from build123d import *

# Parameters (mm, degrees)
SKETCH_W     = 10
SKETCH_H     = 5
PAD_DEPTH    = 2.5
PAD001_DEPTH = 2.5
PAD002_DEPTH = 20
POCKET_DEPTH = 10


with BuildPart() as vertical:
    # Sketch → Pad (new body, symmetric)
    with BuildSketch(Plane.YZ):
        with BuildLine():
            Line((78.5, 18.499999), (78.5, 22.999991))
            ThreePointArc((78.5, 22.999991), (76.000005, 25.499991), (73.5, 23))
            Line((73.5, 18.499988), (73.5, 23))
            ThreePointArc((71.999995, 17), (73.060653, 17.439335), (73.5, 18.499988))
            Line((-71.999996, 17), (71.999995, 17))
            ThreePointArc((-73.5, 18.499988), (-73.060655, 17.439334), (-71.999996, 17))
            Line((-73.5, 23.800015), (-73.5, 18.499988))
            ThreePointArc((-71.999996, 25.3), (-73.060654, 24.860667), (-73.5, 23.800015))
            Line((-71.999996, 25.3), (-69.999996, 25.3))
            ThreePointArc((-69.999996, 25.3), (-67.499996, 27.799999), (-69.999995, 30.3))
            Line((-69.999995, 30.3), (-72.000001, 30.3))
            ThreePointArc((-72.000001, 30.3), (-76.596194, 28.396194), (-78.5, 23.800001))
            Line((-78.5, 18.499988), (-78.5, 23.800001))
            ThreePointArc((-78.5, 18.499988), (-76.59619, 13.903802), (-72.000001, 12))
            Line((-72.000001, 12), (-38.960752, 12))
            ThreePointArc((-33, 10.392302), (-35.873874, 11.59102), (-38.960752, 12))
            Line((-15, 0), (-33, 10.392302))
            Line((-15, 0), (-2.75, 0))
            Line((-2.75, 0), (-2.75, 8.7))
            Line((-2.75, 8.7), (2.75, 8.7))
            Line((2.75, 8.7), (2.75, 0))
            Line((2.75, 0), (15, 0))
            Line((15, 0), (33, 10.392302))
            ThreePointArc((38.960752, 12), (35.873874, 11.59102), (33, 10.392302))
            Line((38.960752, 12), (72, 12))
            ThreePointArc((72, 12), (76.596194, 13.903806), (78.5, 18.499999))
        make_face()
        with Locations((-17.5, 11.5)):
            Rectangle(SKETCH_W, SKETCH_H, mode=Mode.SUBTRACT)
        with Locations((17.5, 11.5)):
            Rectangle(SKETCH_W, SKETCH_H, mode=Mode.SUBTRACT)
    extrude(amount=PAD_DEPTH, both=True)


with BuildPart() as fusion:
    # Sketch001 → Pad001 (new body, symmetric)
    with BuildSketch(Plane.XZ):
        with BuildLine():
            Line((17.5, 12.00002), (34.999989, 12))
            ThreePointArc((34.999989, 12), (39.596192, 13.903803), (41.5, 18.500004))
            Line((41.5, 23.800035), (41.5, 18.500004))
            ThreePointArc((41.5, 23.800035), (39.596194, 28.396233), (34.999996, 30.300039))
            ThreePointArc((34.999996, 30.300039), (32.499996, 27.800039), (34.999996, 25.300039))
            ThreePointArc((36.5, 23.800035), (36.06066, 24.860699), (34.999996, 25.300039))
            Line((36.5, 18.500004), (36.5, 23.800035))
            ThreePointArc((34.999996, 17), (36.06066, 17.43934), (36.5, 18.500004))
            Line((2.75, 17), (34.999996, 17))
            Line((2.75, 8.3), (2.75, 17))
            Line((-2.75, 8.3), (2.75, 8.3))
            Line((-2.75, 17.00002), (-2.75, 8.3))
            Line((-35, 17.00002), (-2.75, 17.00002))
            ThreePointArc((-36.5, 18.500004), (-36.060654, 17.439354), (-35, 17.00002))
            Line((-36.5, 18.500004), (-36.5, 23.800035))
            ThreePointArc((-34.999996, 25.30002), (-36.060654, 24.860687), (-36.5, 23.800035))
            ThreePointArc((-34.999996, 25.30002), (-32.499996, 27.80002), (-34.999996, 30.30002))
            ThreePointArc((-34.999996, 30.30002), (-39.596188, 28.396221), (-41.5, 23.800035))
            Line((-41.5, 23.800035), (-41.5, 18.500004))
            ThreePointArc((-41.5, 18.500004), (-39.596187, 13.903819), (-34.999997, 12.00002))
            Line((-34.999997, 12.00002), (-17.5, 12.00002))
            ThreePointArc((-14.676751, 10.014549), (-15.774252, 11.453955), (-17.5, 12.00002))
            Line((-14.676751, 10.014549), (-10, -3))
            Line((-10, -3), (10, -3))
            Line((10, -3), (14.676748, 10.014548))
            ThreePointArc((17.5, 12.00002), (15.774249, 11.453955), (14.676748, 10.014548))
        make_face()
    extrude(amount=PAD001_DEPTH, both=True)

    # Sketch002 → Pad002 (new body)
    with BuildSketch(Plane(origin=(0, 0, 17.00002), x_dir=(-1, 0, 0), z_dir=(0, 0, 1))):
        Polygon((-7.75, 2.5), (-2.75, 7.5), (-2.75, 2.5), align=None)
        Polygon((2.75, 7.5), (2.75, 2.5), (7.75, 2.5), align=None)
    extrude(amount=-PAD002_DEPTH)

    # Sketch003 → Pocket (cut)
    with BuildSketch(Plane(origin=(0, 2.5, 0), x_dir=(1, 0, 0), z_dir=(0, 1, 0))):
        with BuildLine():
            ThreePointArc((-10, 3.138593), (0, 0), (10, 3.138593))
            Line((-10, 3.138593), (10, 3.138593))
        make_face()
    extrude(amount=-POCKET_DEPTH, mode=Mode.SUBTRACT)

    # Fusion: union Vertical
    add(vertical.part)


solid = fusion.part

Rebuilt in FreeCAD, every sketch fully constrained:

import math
import FreeCAD as App
import Part
import Sketcher
from FreeCAD import Vector
Q = App.Units.Quantity

doc = App.newDocument("Part")
body = doc.addObject("PartDesign::Body", "Body")

# Sketch on YZ plane
sketch1 = body.newObject("Sketcher::SketchObject", "Sketch")
sketch1.AttachmentSupport = (doc.getObject("YZ_Plane"), [""])
sketch1.MapMode = "FlatFace"
sketch1.addGeometry(Part.LineSegment(Vector(78.5, 18.499999, 0), Vector(78.5, 22.999991, 0)), False)
sketch1.addGeometry(Part.ArcOfCircle(Part.Circle(Vector(76, 22.999991, 0), Vector(0, 0, 1), 2.5), math.radians(0), math.radians(179.999794)), False)
sketch1.addGeometry(Part.LineSegment(Vector(73.5, 23, 0), Vector(73.5, 18.499988, 0)), False)
sketch1.addGeometry(Part.ArcOfCircle(Part.Circle(Vector(71.999996, 18.500004, 0), Vector(0, 0, 1), 1.500004), math.radians(-90.000038), math.radians(-0.000611)), False)
sketch1.addGeometry(Part.LineSegment(Vector(71.999995, 17, 0), Vector(-71.999996, 17, 0)), False)
sketch1.addGeometry(Part.ArcOfCircle(Part.Circle(Vector(-72.000001, 18.499999, 0), Vector(0, 0, 1), 1.499999), math.radians(-179.999584), math.radians(-89.999804)), False)
sketch1.addGeometry(Part.LineSegment(Vector(-73.5, 18.499988, 0), Vector(-73.5, 23.800015, 0)), False)
sketch1.addGeometry(Part.ArcOfCircle(Part.Circle(Vector(-72.000001, 23.800001, 0), Vector(0, 0, 1), 1.499999), math.radians(89.999804), math.radians(179.99947)), False)
sketch1.addGeometry(Part.LineSegment(Vector(-71.999996, 25.3, 0), Vector(-69.999996, 25.3, 0)), False)
sketch1.addGeometry(Part.ArcOfCircle(Part.Circle(Vector(-69.999996, 27.8, 0), Vector(0, 0, 1), 2.5), math.radians(-90), math.radians(89.999977)), False)
sketch1.addGeometry(Part.LineSegment(Vector(-69.999995, 30.3, 0), Vector(-72.000001, 30.3, 0)), False)
sketch1.addGeometry(Part.ArcOfCircle(Part.Circle(Vector(-72, 23.8, 0), Vector(0, 0, 1), 6.5), math.radians(90.000011), math.radians(179.999989)), False)
sketch1.addGeometry(Part.LineSegment(Vector(-78.5, 23.800001, 0), Vector(-78.5, 18.499988, 0)), False)
sketch1.addGeometry(Part.ArcOfCircle(Part.Circle(Vector(-72, 18.5, 0), Vector(0, 0, 1), 6.5), math.radians(-179.999892), math.radians(-90.000011)), False)
sketch1.addGeometry(Part.LineSegment(Vector(-72.000001, 12, 0), Vector(-38.960752, 12, 0)), False)
sketch1.addGeometry(Part.ArcOfCircle(Part.Circle(Vector(-38.960754, 0.146008, 0), Vector(0, 0, 1), 11.853992), math.radians(59.811411), math.radians(89.999992)), False)
sketch1.addGeometry(Part.LineSegment(Vector(-33, 10.392302, 0), Vector(-15, 0, 0)), False)
sketch1.addGeometry(Part.LineSegment(Vector(-15, 0, 0), Vector(-2.75, 0, 0)), False)
sketch1.addGeometry(Part.LineSegment(Vector(-2.75, 0, 0), Vector(-2.75, 8.7, 0)), False)
sketch1.addGeometry(Part.LineSegment(Vector(-2.75, 8.7, 0), Vector(2.75, 8.7, 0)), False)
sketch1.addGeometry(Part.LineSegment(Vector(2.75, 8.7, 0), Vector(2.75, 0, 0)), False)
sketch1.addGeometry(Part.LineSegment(Vector(2.75, 0, 0), Vector(15, 0, 0)), False)
sketch1.addGeometry(Part.LineSegment(Vector(15, 0, 0), Vector(33, 10.392302, 0)), False)
sketch1.addGeometry(Part.ArcOfCircle(Part.Circle(Vector(38.960754, 0.146008, 0), Vector(0, 0, 1), 11.853992), math.radians(90.000008), math.radians(120.188589)), False)
sketch1.addGeometry(Part.LineSegment(Vector(38.960752, 12, 0), Vector(72, 12, 0)), False)
sketch1.addGeometry(Part.ArcOfCircle(Part.Circle(Vector(72, 18.5, 0), Vector(0, 0, 1), 6.5), math.radians(-89.999998), math.radians(-0.000011)), False)
sketch1.addGeometry(Part.LineSegment(Vector(-12.5, 9, 0), Vector(-22.5, 9, 0)), False)
sketch1.addGeometry(Part.LineSegment(Vector(-22.5, 9, 0), Vector(-22.5, 14, 0)), False)
sketch1.addGeometry(Part.LineSegment(Vector(-22.5, 14, 0), Vector(-12.5, 14, 0)), False)
sketch1.addGeometry(Part.LineSegment(Vector(-12.5, 14, 0), Vector(-12.5, 9, 0)), False)
sketch1.addGeometry(Part.LineSegment(Vector(22.5, 9, 0), Vector(12.5, 9, 0)), False)
sketch1.addGeometry(Part.LineSegment(Vector(12.5, 9, 0), Vector(12.5, 14, 0)), False)
sketch1.addGeometry(Part.LineSegment(Vector(12.5, 14, 0), Vector(22.5, 14, 0)), False)
sketch1.addGeometry(Part.LineSegment(Vector(22.5, 14, 0), Vector(22.5, 9, 0)), False)
sketch1.addConstraint(Sketcher.Constraint("Tangent", 0, 2, 1, 1))
sketch1.addConstraint(Sketcher.Constraint("Coincident", 1, 2, 2, 1))
sketch1.addConstraint(Sketcher.Constraint("Coincident", 2, 2, 3, 2))
sketch1.addConstraint(Sketcher.Constraint("Tangent", 3, 1, 4, 1))
sketch1.addConstraint(Sketcher.Constraint("Coincident", 4, 2, 5, 2))
sketch1.addConstraint(Sketcher.Constraint("Coincident", 5, 1, 6, 1))
sketch1.addConstraint(Sketcher.Constraint("Coincident", 6, 2, 7, 2))
sketch1.addConstraint(Sketcher.Constraint("Coincident", 7, 1, 8, 1))
sketch1.addConstraint(Sketcher.Constraint("Tangent", 8, 2, 9, 1))
sketch1.addConstraint(Sketcher.Constraint("Tangent", 9, 2, 10, 1))
sketch1.addConstraint(Sketcher.Constraint("Tangent", 10, 2, 11, 1))
sketch1.addConstraint(Sketcher.Constraint("Tangent", 11, 2, 12, 1))
sketch1.addConstraint(Sketcher.Constraint("Tangent", 12, 2, 13, 1))
sketch1.addConstraint(Sketcher.Constraint("Tangent", 13, 2, 14, 1))
sketch1.addConstraint(Sketcher.Constraint("Tangent", 14, 2, 15, 2))
sketch1.addConstraint(Sketcher.Constraint("Coincident", 15, 1, 16, 1))
sketch1.addConstraint(Sketcher.Constraint("Coincident", 16, 2, 17, 1))
sketch1.addConstraint(Sketcher.Constraint("Coincident", 17, 2, 18, 1))
sketch1.addConstraint(Sketcher.Constraint("Coincident", 18, 2, 19, 1))
sketch1.addConstraint(Sketcher.Constraint("Coincident", 19, 2, 20, 1))
sketch1.addConstraint(Sketcher.Constraint("Coincident", 20, 2, 21, 1))
sketch1.addConstraint(Sketcher.Constraint("Coincident", 21, 2, 22, 1))
sketch1.addConstraint(Sketcher.Constraint("Coincident", 22, 2, 23, 2))
sketch1.addConstraint(Sketcher.Constraint("Tangent", 23, 1, 24, 1))
sketch1.addConstraint(Sketcher.Constraint("Tangent", 24, 2, 25, 1))
sketch1.addConstraint(Sketcher.Constraint("Tangent", 25, 2, 0, 1))
sketch1.addConstraint(Sketcher.Constraint("Coincident", 26, 2, 27, 1))
sketch1.addConstraint(Sketcher.Constraint("Coincident", 27, 2, 28, 1))
sketch1.addConstraint(Sketcher.Constraint("Coincident", 28, 2, 29, 1))
sketch1.addConstraint(Sketcher.Constraint("Coincident", 29, 2, 26, 1))
sketch1.addConstraint(Sketcher.Constraint("Coincident", 30, 2, 31, 1))
sketch1.addConstraint(Sketcher.Constraint("Coincident", 31, 2, 32, 1))
sketch1.addConstraint(Sketcher.Constraint("Coincident", 32, 2, 33, 1))
sketch1.addConstraint(Sketcher.Constraint("Coincident", 33, 2, 30, 1))
sketch1.addConstraint(Sketcher.Constraint("Vertical", 0))
sketch1.addConstraint(Sketcher.Constraint("Vertical", 2))
sketch1.addConstraint(Sketcher.Constraint("Horizontal", 4))
sketch1.addConstraint(Sketcher.Constraint("Vertical", 6))
sketch1.addConstraint(Sketcher.Constraint("Horizontal", 8))
sketch1.addConstraint(Sketcher.Constraint("Horizontal", 10))
sketch1.addConstraint(Sketcher.Constraint("Vertical", 12))
sketch1.addConstraint(Sketcher.Constraint("Horizontal", 14))
sketch1.addConstraint(Sketcher.Constraint("Horizontal", 17))
sketch1.addConstraint(Sketcher.Constraint("Vertical", 18))
sketch1.addConstraint(Sketcher.Constraint("Horizontal", 19))
sketch1.addConstraint(Sketcher.Constraint("Vertical", 20))
sketch1.addConstraint(Sketcher.Constraint("Horizontal", 21))
sketch1.addConstraint(Sketcher.Constraint("Horizontal", 24))
sketch1.addConstraint(Sketcher.Constraint("Horizontal", 26))
sketch1.addConstraint(Sketcher.Constraint("Vertical", 27))
sketch1.addConstraint(Sketcher.Constraint("Horizontal", 28))
sketch1.addConstraint(Sketcher.Constraint("Vertical", 29))
sketch1.addConstraint(Sketcher.Constraint("Horizontal", 30))
sketch1.addConstraint(Sketcher.Constraint("Vertical", 31))
sketch1.addConstraint(Sketcher.Constraint("Horizontal", 32))
sketch1.addConstraint(Sketcher.Constraint("Vertical", 33))
sketch1.addConstraint(Sketcher.Constraint("Coincident", 11, 3, 7, 3))
sketch1.addConstraint(Sketcher.Constraint("Coincident", 13, 3, 5, 3))
sketch1.addConstraint(Sketcher.Constraint("Coincident", 25, 3, 3, 3))
sketch1.addConstraint(Sketcher.Constraint("Equal", 5, 7))
sketch1.addConstraint(Sketcher.Constraint("Equal", 1, 9))
sketch1.addConstraint(Sketcher.Constraint("Equal", 15, 23))
sketch1.addConstraint(Sketcher.Constraint("Equal", 13, 25))
sketch1.addConstraint(Sketcher.Constraint("Symmetric", 17, 2, 20, 2, -1, 1))
sketch1.addConstraint(Sketcher.Constraint("Symmetric", 2, 2, 5, 1, -2))
sketch1.addConstraint(Sketcher.Constraint("Symmetric", 16, 2, 21, 2, -2))
sketch1.addConstraint(Sketcher.Constraint("Symmetric", 15, 1, 22, 2, -2))
sketch1.addConstraint(Sketcher.Constraint("Symmetric", 29, 2, 30, 2, -2))
sketch1.addConstraint(Sketcher.Constraint("Symmetric", 27, 2, 32, 2, -2))
sketch1.addConstraint(Sketcher.Constraint("Horizontal", 5, 1, 12, 2))
sketch1.addConstraint(Sketcher.Constraint("Vertical", 4, 2, 7, 1))
sketch1.addConstraint(Sketcher.Constraint("Radius", 1, 2.5))
sketch1.addConstraint(Sketcher.Constraint("Radius", 5, 1.499999))
sketch1.addConstraint(Sketcher.Constraint("DistanceX", 8, 1, 8, 2, 2.0))
sketch1.addConstraint(Sketcher.Constraint("DistanceX", 26, 2, 26, 1, 10.0))
sketch1.addConstraint(Sketcher.Constraint("DistanceY", 27, 1, 27, 2, 5.0))
sketch1.addConstraint(Sketcher.Constraint("Angle", 16, Q("-29.999993 deg")))
sketch1.addConstraint(Sketcher.Constraint("DistanceX", 19, 1, 19, 2, 5.5))
sketch1.addConstraint(Sketcher.Constraint("DistanceY", 18, 1, 18, 2, 8.7))
sketch1.addConstraint(Sketcher.Constraint("DistanceX", -1, 1, 1, 3, 76.0))
sketch1.addConstraint(Sketcher.Constraint("DistanceY", -1, 1, 1, 2, 23.0))
sketch1.addConstraint(Sketcher.Constraint("DistanceY", -1, 1, 3, 1, 17.0))
sketch1.addConstraint(Sketcher.Constraint("DistanceX", 15, 1, -1, 1, 33.0))
sketch1.addConstraint(Sketcher.Constraint("DistanceX", 16, 2, -1, 1, 15.0))
sketch1.addConstraint(Sketcher.Constraint("DistanceY", -1, 1, 26, 2, 9.0))
sketch1.addConstraint(Sketcher.Constraint("DistanceY", -1, 1, 7, 3, 23.800001))
sketch1.addConstraint(Sketcher.Constraint("DistanceX", 26, 2, -1, 1, 22.5))
sketch1.addConstraint(Sketcher.Constraint("Radius", 15, 11.853992))
sketch1.addConstraint(Sketcher.Constraint("DistanceX", 4, 2, 4, 1, 143.999991))
sketch1.addConstraint(Sketcher.Constraint("DistanceY", 0, 1, 0, 2, 4.499992))
sketch1.addConstraint(Sketcher.Constraint("DistanceY", 6, 1, 6, 2, 5.300027))
pad1 = body.newObject("PartDesign::Pad", "Pad")
pad1.Profile = sketch1
pad1.Length = 5
pad1.Midplane = True
body2 = doc.addObject("PartDesign::Body", "Body001")
body2.AllowCompound = True

# Sketch on XZ plane
sketch2 = body2.newObject("Sketcher::SketchObject", "Sketch001")
sketch2.AttachmentSupport = (doc.getObject("XZ_Plane001"), [""])
sketch2.MapMode = "FlatFace"
sketch2.addGeometry(Part.LineSegment(Vector(17.5, 12.00002, 0), Vector(34.999989, 12, 0)), False)
sketch2.addGeometry(Part.ArcOfCircle(Part.Circle(Vector(35.000001, 18.499999, 0), Vector(0, 0, 1), 6.499999), math.radians(-90.00011), math.radians(0.000048)), False)
sketch2.addGeometry(Part.LineSegment(Vector(41.5, 18.500004, 0), Vector(41.5, 23.800035, 0)), False)
sketch2.addGeometry(Part.ArcOfCircle(Part.Circle(Vector(35, 23.800039, 0), Vector(0, 0, 1), 6.5), math.radians(-0.000033), math.radians(90.000033)), False)
sketch2.addGeometry(Part.ArcOfCircle(Part.Circle(Vector(34.999996, 27.800039, 0), Vector(0, 0, 1), 2.5), math.radians(90), math.radians(270)), False)
sketch2.addGeometry(Part.ArcOfCircle(Part.Circle(Vector(34.999999, 23.800038, 0), Vector(0, 0, 1), 1.500001), math.radians(-0.00013), math.radians(90.00013)), False)
sketch2.addGeometry(Part.LineSegment(Vector(36.5, 23.800035, 0), Vector(36.5, 18.500004, 0)), False)
sketch2.addGeometry(Part.ArcOfCircle(Part.Circle(Vector(34.999999, 18.500001, 0), Vector(0, 0, 1), 1.500001), math.radians(-90.00013), math.radians(0.00013)), False)
sketch2.addGeometry(Part.LineSegment(Vector(34.999996, 17, 0), Vector(2.75, 17, 0)), False)
sketch2.addGeometry(Part.LineSegment(Vector(2.75, 17, 0), Vector(2.75, 8.3, 0)), False)
sketch2.addGeometry(Part.LineSegment(Vector(2.75, 8.3, 0), Vector(-2.75, 8.3, 0)), False)
sketch2.addGeometry(Part.LineSegment(Vector(-2.75, 8.3, 0), Vector(-2.75, 17.00002, 0)), False)
sketch2.addGeometry(Part.LineSegment(Vector(-2.75, 17.00002, 0), Vector(-35, 17.00002, 0)), False)
sketch2.addGeometry(Part.ArcOfCircle(Part.Circle(Vector(-34.999999, 18.500021, 0), Vector(0, 0, 1), 1.500001), math.radians(-179.999366), math.radians(-90.000022)), False)
sketch2.addGeometry(Part.LineSegment(Vector(-36.5, 18.500004, 0), Vector(-36.5, 23.800035, 0)), False)
sketch2.addGeometry(Part.ArcOfCircle(Part.Circle(Vector(-35.000001, 23.800021, 0), Vector(0, 0, 1), 1.499999), math.radians(89.999804), math.radians(179.99947)), False)
sketch2.addGeometry(Part.ArcOfCircle(Part.Circle(Vector(-34.999996, 27.80002, 0), Vector(0, 0, 1), 2.5), math.radians(-90), math.radians(90)), False)
sketch2.addGeometry(Part.ArcOfCircle(Part.Circle(Vector(-35.000001, 23.800021, 0), Vector(0, 0, 1), 6.499999), math.radians(89.999952), math.radians(179.99988)), False)
sketch2.addGeometry(Part.LineSegment(Vector(-41.5, 23.800035, 0), Vector(-41.5, 18.500004, 0)), False)
sketch2.addGeometry(Part.ArcOfCircle(Part.Circle(Vector(-35, 18.50002, 0), Vector(0, 0, 1), 6.5), math.radians(-179.999857), math.radians(-89.999976)), False)
sketch2.addGeometry(Part.LineSegment(Vector(-34.999997, 12.00002, 0), Vector(-17.5, 12.00002, 0)), False)
sketch2.addGeometry(Part.ArcOfCircle(Part.Circle(Vector(-17.499999, 9.000021, 0), Vector(0, 0, 1), 2.999999), math.radians(19.765798), math.radians(90.000021)), False)
sketch2.addGeometry(Part.LineSegment(Vector(-14.676751, 10.014549, 0), Vector(-10, -3, 0)), False)
sketch2.addGeometry(Part.LineSegment(Vector(-10, -3, 0), Vector(10, -3, 0)), False)
sketch2.addGeometry(Part.LineSegment(Vector(10, -3, 0), Vector(14.676748, 10.014548, 0)), False)
sketch2.addGeometry(Part.ArcOfCircle(Part.Circle(Vector(17.499996, 9.000021, 0), Vector(0, 0, 1), 2.999999), math.radians(89.999917), math.radians(160.234234)), False)
sketch2.addConstraint(Sketcher.Constraint("Tangent", 0, 2, 1, 1))
sketch2.addConstraint(Sketcher.Constraint("Tangent", 1, 2, 2, 1))
sketch2.addConstraint(Sketcher.Constraint("Tangent", 2, 2, 3, 1))
sketch2.addConstraint(Sketcher.Constraint("Tangent", 3, 2, 4, 1))
sketch2.addConstraint(Sketcher.Constraint("Coincident", 4, 2, 5, 2))
sketch2.addConstraint(Sketcher.Constraint("Coincident", 5, 1, 6, 1))
sketch2.addConstraint(Sketcher.Constraint("Coincident", 6, 2, 7, 2))
sketch2.addConstraint(Sketcher.Constraint("Coincident", 7, 1, 8, 1))
sketch2.addConstraint(Sketcher.Constraint("Coincident", 8, 2, 9, 1))
sketch2.addConstraint(Sketcher.Constraint("Coincident", 9, 2, 10, 1))
sketch2.addConstraint(Sketcher.Constraint("Coincident", 10, 2, 11, 1))
sketch2.addConstraint(Sketcher.Constraint("Coincident", 11, 2, 12, 1))
sketch2.addConstraint(Sketcher.Constraint("Tangent", 12, 2, 13, 2))
sketch2.addConstraint(Sketcher.Constraint("Coincident", 13, 1, 14, 1))
sketch2.addConstraint(Sketcher.Constraint("Coincident", 14, 2, 15, 2))
sketch2.addConstraint(Sketcher.Constraint("Coincident", 15, 1, 16, 1))
sketch2.addConstraint(Sketcher.Constraint("Tangent", 16, 2, 17, 1))
sketch2.addConstraint(Sketcher.Constraint("Coincident", 17, 2, 18, 1))
sketch2.addConstraint(Sketcher.Constraint("Coincident", 18, 2, 19, 1))
sketch2.addConstraint(Sketcher.Constraint("Tangent", 19, 2, 20, 1))
sketch2.addConstraint(Sketcher.Constraint("Tangent", 20, 2, 21, 2))
sketch2.addConstraint(Sketcher.Constraint("Tangent", 21, 1, 22, 1))
sketch2.addConstraint(Sketcher.Constraint("Coincident", 22, 2, 23, 1))
sketch2.addConstraint(Sketcher.Constraint("Coincident", 23, 2, 24, 1))
sketch2.addConstraint(Sketcher.Constraint("Tangent", 24, 2, 25, 2))
sketch2.addConstraint(Sketcher.Constraint("Tangent", 25, 1, 0, 1))
sketch2.addConstraint(Sketcher.Constraint("Vertical", 2))
sketch2.addConstraint(Sketcher.Constraint("Vertical", 6))
sketch2.addConstraint(Sketcher.Constraint("Horizontal", 8))
sketch2.addConstraint(Sketcher.Constraint("Vertical", 9))
sketch2.addConstraint(Sketcher.Constraint("Horizontal", 10))
sketch2.addConstraint(Sketcher.Constraint("Vertical", 11))
sketch2.addConstraint(Sketcher.Constraint("Horizontal", 12))
sketch2.addConstraint(Sketcher.Constraint("Vertical", 14))
sketch2.addConstraint(Sketcher.Constraint("Vertical", 18))
sketch2.addConstraint(Sketcher.Constraint("Horizontal", 20))
sketch2.addConstraint(Sketcher.Constraint("Horizontal", 23))
sketch2.addConstraint(Sketcher.Constraint("Coincident", 5, 3, 3, 3))
sketch2.addConstraint(Sketcher.Constraint("Coincident", 7, 3, 1, 3))
sketch2.addConstraint(Sketcher.Constraint("Coincident", 17, 3, 15, 3))
sketch2.addConstraint(Sketcher.Constraint("Coincident", 19, 3, 13, 3))
sketch2.addConstraint(Sketcher.Constraint("Equal", 1, 3))
sketch2.addConstraint(Sketcher.Constraint("Equal", 7, 13))
sketch2.addConstraint(Sketcher.Constraint("Equal", 13, 15))
sketch2.addConstraint(Sketcher.Constraint("Equal", 4, 16))
sketch2.addConstraint(Sketcher.Constraint("Equal", 21, 25))
sketch2.addConstraint(Sketcher.Constraint("Symmetric", 21, 3, 25, 3, -2))
sketch2.addConstraint(Sketcher.Constraint("Symmetric", 6, 2, 13, 1, -2))
sketch2.addConstraint(Sketcher.Constraint("Horizontal", 2, 2, 5, 1))
sketch2.addConstraint(Sketcher.Constraint("Horizontal", 1, 2, 6, 2))
sketch2.addConstraint(Sketcher.Constraint("Horizontal", 5, 1, 14, 2))
sketch2.addConstraint(Sketcher.Constraint("Horizontal", 14, 2, 17, 2))
sketch2.addConstraint(Sketcher.Constraint("Horizontal", 13, 1, 18, 2))
sketch2.addConstraint(Sketcher.Constraint("Horizontal", 21, 1, 24, 2))
sketch2.addConstraint(Sketcher.Constraint("Vertical", 4, 3, 3, 2))
sketch2.addConstraint(Sketcher.Constraint("Vertical", 3, 2, 4, 2))
sketch2.addConstraint(Sketcher.Constraint("Vertical", 4, 2, 7, 1))
sketch2.addConstraint(Sketcher.Constraint("Vertical", 16, 3, 15, 1))
sketch2.addConstraint(Sketcher.Constraint("Vertical", 15, 1, 16, 2))
sketch2.addConstraint(Sketcher.Constraint("Radius", 21, 2.999999))
sketch2.addConstraint(Sketcher.Constraint("Radius", 1, 6.499999))
sketch2.addConstraint(Sketcher.Constraint("Radius", 4, 2.5))
sketch2.addConstraint(Sketcher.Constraint("DistanceX", 23, 1, 23, 2, 20.0))
sketch2.addConstraint(Sketcher.Constraint("DistanceX", 10, 2, 10, 1, 5.5))
sketch2.addConstraint(Sketcher.Constraint("DistanceY", 9, 2, 9, 1, 8.7))
sketch2.addConstraint(Sketcher.Constraint("DistanceX", -1, 1, 1, 3, 35.000001))
sketch2.addConstraint(Sketcher.Constraint("DistanceY", -1, 1, 0, 2, 12.0))
sketch2.addConstraint(Sketcher.Constraint("DistanceY", 22, 2, -1, 1, 3.0))
sketch2.addConstraint(Sketcher.Constraint("DistanceX", 12, 2, 12, 1, 32.25))
sketch2.addConstraint(Sketcher.Constraint("DistanceX", 21, 3, -1, 1, 17.499999))
sketch2.addConstraint(Sketcher.Constraint("DistanceX", -1, 1, 25, 1, 17.5))
sketch2.addConstraint(Sketcher.Constraint("DistanceY", 13, 3, 15, 3, 5.300001))
sketch2.addConstraint(Sketcher.Constraint("DistanceY", 2, 1, 2, 2, 5.300031))
pad2 = body2.newObject("PartDesign::Pad", "Pad001")
pad2.Profile = sketch2
pad2.Length = 5
pad2.Midplane = True

# Sketch on XY plane
sketch3 = body2.newObject("Sketcher::SketchObject", "Sketch002")
sketch3.AttachmentSupport = (doc.getObject("XY_Plane001"), [""])
sketch3.MapMode = "FlatFace"
sketch3.AttachmentOffset = App.Placement(Vector(0, 0, 17.00002), App.Rotation())
sketch3.addGeometry(Part.LineSegment(Vector(2.75, -7.5, 0), Vector(7.75, -2.5, 0)), False)
sketch3.addGeometry(Part.LineSegment(Vector(7.75, -2.5, 0), Vector(2.75, -2.5, 0)), False)
sketch3.addGeometry(Part.LineSegment(Vector(2.75, -2.5, 0), Vector(2.75, -7.5, 0)), False)
sketch3.addGeometry(Part.LineSegment(Vector(-2.75, -7.5, 0), Vector(-2.75, -2.5, 0)), False)
sketch3.addGeometry(Part.LineSegment(Vector(-2.75, -2.5, 0), Vector(-7.75, -2.5, 0)), False)
sketch3.addGeometry(Part.LineSegment(Vector(-7.75, -2.5, 0), Vector(-2.75, -7.5, 0)), False)
sketch3.addConstraint(Sketcher.Constraint("Coincident", 0, 2, 1, 1))
sketch3.addConstraint(Sketcher.Constraint("Coincident", 1, 2, 2, 1))
sketch3.addConstraint(Sketcher.Constraint("Coincident", 2, 2, 0, 1))
sketch3.addConstraint(Sketcher.Constraint("Coincident", 3, 2, 4, 1))
sketch3.addConstraint(Sketcher.Constraint("Coincident", 4, 2, 5, 1))
sketch3.addConstraint(Sketcher.Constraint("Coincident", 5, 2, 3, 1))
sketch3.addConstraint(Sketcher.Constraint("Horizontal", 1))
sketch3.addConstraint(Sketcher.Constraint("Vertical", 2))
sketch3.addConstraint(Sketcher.Constraint("Vertical", 3))
sketch3.addConstraint(Sketcher.Constraint("Horizontal", 4))
sketch3.addConstraint(Sketcher.Constraint("Symmetric", 1, 2, 3, 2, -2))
sketch3.addConstraint(Sketcher.Constraint("Perpendicular", 0, 5))
sketch3.addConstraint(Sketcher.Constraint("Horizontal", 2, 2, 5, 2))
sketch3.addConstraint(Sketcher.Constraint("Equal", 1, 4))
sketch3.addConstraint(Sketcher.Constraint("DistanceX", 1, 2, 1, 1, 5.0))
sketch3.addConstraint(Sketcher.Constraint("DistanceY", 0, 2, -1, 1, 2.5))
sketch3.addConstraint(Sketcher.Constraint("DistanceX", 3, 2, 1, 2, 5.5))
pad3 = body2.newObject("PartDesign::Pad", "Pad002")
pad3.Profile = sketch3
pad3.Length = 20
pad3.Reversed = True

# Sketch on XZ plane
sketch4 = body2.newObject("Sketcher::SketchObject", "Sketch003")
sketch4.AttachmentSupport = (doc.getObject("XZ_Plane001"), [""])
sketch4.MapMode = "FlatFace"
sketch4.AttachmentOffset = App.Placement(Vector(0, 0, -2.5), App.Rotation())
sketch4.addGeometry(Part.ArcOfCircle(Part.Circle(Vector(0, -17.500002, 0), Vector(0, 0, 1), 17.500002), math.radians(55.150099), math.radians(124.849901)), False)
sketch4.addGeometry(Part.LineSegment(Vector(10, -3.138593, 0), Vector(-10, -3.138593, 0)), False)
sketch4.addConstraint(Sketcher.Constraint("Coincident", 0, 1, 1, 1))
sketch4.addConstraint(Sketcher.Constraint("Coincident", 1, 2, 0, 2))
sketch4.addConstraint(Sketcher.Constraint("Horizontal", 1))
sketch4.addConstraint(Sketcher.Constraint("PointOnObject", 0, 3, -2))
sketch4.addConstraint(Sketcher.Constraint("Radius", 0, 17.500002))
sketch4.addConstraint(Sketcher.Constraint("DistanceX", 1, 2, 1, 1, 20.0))
sketch4.addConstraint(Sketcher.Constraint("DistanceY", 0, 3, -1, 1, 17.500002))
pocket1 = body2.newObject("PartDesign::Pocket", "Pocket")
pocket1.Profile = sketch4
pocket1.Length = 10
pocket1.Reversed = True
doc.recompute()

boolean = body2.newObject("PartDesign::Boolean", "Boolean")
boolean.Type = "Fuse"
boolean.addObjects([body])

doc.recompute()
